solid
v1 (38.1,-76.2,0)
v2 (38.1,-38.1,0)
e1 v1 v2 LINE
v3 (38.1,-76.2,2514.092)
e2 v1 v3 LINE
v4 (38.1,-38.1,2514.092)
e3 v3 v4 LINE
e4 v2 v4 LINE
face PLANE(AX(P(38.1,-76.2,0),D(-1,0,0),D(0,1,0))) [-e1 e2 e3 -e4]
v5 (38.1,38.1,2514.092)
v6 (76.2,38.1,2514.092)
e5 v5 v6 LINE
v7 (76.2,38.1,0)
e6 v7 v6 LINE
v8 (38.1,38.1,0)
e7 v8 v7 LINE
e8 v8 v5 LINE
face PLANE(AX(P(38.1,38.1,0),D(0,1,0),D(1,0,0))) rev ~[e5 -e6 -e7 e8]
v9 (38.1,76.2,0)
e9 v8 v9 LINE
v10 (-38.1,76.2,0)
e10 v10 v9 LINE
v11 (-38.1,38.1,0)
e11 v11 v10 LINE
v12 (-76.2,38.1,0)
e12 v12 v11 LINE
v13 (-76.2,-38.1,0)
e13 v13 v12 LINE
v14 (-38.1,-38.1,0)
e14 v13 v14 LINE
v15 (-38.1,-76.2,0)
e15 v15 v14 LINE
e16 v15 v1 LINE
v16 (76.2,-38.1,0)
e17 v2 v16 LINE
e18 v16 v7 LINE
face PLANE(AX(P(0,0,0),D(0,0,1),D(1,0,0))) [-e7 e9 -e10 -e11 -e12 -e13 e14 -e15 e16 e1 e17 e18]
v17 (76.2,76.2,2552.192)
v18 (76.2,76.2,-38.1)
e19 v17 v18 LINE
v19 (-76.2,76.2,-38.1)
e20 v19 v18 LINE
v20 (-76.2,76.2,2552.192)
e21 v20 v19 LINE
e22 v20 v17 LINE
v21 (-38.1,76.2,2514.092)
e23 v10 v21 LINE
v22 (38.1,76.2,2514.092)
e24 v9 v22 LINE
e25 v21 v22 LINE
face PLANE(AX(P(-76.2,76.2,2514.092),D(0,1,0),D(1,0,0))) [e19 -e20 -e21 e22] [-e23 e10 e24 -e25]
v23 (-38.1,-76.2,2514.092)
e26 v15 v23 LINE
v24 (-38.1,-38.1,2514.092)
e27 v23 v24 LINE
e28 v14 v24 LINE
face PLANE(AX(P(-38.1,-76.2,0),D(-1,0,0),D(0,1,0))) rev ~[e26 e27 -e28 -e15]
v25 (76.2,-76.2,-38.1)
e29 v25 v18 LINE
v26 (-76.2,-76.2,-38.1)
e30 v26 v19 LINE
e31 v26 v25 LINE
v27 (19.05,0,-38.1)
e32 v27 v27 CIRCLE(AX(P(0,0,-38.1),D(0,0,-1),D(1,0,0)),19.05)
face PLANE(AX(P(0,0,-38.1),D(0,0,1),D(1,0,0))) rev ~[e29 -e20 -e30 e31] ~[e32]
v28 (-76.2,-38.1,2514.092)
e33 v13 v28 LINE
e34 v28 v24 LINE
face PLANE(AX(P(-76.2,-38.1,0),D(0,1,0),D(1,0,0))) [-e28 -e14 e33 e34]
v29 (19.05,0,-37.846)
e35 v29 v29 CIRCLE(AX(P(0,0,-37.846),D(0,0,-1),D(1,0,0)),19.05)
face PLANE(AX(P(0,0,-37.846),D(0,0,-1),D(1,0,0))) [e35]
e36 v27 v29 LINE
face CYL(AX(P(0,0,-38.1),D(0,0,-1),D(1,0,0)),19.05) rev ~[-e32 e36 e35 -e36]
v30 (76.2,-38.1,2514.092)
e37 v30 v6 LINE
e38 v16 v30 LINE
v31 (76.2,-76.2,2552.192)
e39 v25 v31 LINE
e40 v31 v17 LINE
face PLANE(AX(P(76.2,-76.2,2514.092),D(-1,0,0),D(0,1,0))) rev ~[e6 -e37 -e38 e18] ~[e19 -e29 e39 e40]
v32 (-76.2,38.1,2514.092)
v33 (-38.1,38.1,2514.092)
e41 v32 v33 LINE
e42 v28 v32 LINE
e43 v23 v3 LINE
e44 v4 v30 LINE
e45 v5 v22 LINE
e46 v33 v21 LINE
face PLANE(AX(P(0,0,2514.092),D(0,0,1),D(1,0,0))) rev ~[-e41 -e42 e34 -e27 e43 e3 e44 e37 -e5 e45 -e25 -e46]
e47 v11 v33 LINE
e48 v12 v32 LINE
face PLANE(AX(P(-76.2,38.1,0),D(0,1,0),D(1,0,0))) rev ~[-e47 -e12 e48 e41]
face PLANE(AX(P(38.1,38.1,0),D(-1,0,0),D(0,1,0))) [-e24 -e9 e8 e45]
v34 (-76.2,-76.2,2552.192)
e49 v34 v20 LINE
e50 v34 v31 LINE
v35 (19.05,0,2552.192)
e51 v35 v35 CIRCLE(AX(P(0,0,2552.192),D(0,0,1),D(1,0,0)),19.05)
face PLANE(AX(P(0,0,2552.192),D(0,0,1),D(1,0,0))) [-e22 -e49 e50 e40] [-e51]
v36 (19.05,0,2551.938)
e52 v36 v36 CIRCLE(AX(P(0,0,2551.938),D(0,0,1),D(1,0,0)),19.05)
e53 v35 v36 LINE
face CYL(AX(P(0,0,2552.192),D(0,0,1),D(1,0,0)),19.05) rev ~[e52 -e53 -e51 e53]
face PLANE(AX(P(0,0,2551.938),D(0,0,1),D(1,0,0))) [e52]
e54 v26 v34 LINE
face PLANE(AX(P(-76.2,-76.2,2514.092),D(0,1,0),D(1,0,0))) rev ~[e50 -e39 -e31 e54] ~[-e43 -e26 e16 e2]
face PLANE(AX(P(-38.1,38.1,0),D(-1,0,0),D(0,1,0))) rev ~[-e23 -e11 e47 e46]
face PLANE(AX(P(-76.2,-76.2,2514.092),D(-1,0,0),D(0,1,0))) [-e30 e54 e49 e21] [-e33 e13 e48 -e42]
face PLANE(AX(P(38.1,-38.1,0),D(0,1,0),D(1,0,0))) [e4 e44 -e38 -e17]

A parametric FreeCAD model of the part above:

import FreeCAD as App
import Part
import Sketcher
Q = App.Units.Quantity

doc = App.newDocument("Part")
body = doc.addObject("PartDesign::Body", "Body")

sketch1 = doc.addObject("Sketcher::SketchObject", "Sketch")
body.addObject(sketch1)
sketch1.AttachmentSupport = (doc.XY_Plane, [""])
sketch1.MapMode = "FlatFace"
sketch1.addGeometry([
    Part.LineSegment(App.Vector(-76, 76, 0), App.Vector(-76, -76, 0)),
    Part.LineSegment(App.Vector(-76, -76, 0), App.Vector(76, -76, 0)),
    Part.LineSegment(App.Vector(76, -76, 0), App.Vector(76, 76, 0)),
    Part.LineSegment(App.Vector(76, 76, 0), App.Vector(-76, 76, 0)),
], False)
sketch1.addConstraint([
    Sketcher.Constraint("Coincident", 0, 2, 1, 1),
    Sketcher.Constraint("Coincident", 1, 2, 2, 1),
    Sketcher.Constraint("Coincident", 2, 2, 3, 1),
    Sketcher.Constraint("Coincident", 3, 2, 0, 1),
    Sketcher.Constraint("Vertical", 0),
    Sketcher.Constraint("Horizontal", 1),
    Sketcher.Constraint("Vertical", 2),
    Sketcher.Constraint("Horizontal", 3),
    Sketcher.Constraint("Symmetric", 0, 2, 2, 2, -1, 1),
    Sketcher.Constraint("Equal", 3, 0),
    Sketcher.Constraint("DistanceX", 1, 1, 1, 2, Q("6 in")),
])
pad1 = doc.addObject("PartDesign::Pad", "Pad")
body.addObject(pad1)
pad1.Profile = sketch1
pad1.Length = Q("1.5 in")
pad1.Reversed = True

sketch2 = doc.addObject("Sketcher::SketchObject", "Sketch001")
body.addObject(sketch2)
sketch2.AttachmentSupport = (doc.XY_Plane, [""])
sketch2.MapMode = "FlatFace"
sketch2.addGeometry([
    Part.LineSegment(App.Vector(38, -38, 0), App.Vector(38, -76, 0)),
    Part.LineSegment(App.Vector(38, -76, 0), App.Vector(76, -76, 0)),
    Part.LineSegment(App.Vector(76, -76, 0), App.Vector(76, -38, 0)),
    Part.LineSegment(App.Vector(76, -38, 0), App.Vector(38, -38, 0)),
    Part.LineSegment(App.Vector(38, 76, 0), App.Vector(38, 38, 0)),
    Part.LineSegment(App.Vector(38, 38, 0), App.Vector(76, 38, 0)),
    Part.LineSegment(App.Vector(76, 38, 0), App.Vector(76, 76, 0)),
    Part.LineSegment(App.Vector(76, 76, 0), App.Vector(38, 76, 0)),
    Part.LineSegment(App.Vector(-76, -38, 0), App.Vector(-76, -76, 0)),
    Part.LineSegment(App.Vector(-76, -76, 0), App.Vector(-38, -76, 0)),
    Part.LineSegment(App.Vector(-38, -76, 0), App.Vector(-38, -38, 0)),
    Part.LineSegment(App.Vector(-38, -38, 0), App.Vector(-76, -38, 0)),
    Part.LineSegment(App.Vector(-76, 76, 0), App.Vector(-76, 38, 0)),
    Part.LineSegment(App.Vector(-76, 38, 0), App.Vector(-38, 38, 0)),
    Part.LineSegment(App.Vector(-38, 38, 0), App.Vector(-38, 76, 0)),
    Part.LineSegment(App.Vector(-38, 76, 0), App.Vector(-76, 76, 0)),
], False)
sketch2.addConstraint([
    Sketcher.Constraint("Coincident", 0, 2, 1, 1),
    Sketcher.Constraint("Coincident", 1, 2, 2, 1),
    Sketcher.Constraint("Coincident", 2, 2, 3, 1),
    Sketcher.Constraint("Coincident", 3, 2, 0, 1),
    Sketcher.Constraint("Coincident", 4, 2, 5, 1),
    Sketcher.Constraint("Coincident", 5, 2, 6, 1),
    Sketcher.Constraint("Coincident", 6, 2, 7, 1),
    Sketcher.Constraint("Coincident", 7, 2, 4, 1),
    Sketcher.Constraint("Coincident", 8, 2, 9, 1),
    Sketcher.Constraint("Coincident", 9, 2, 10, 1),
    Sketcher.Constraint("Coincident", 10, 2, 11, 1),
    Sketcher.Constraint("Coincident", 11, 2, 8, 1),
    Sketcher.Constraint("Coincident", 12, 2, 13, 1),
    Sketcher.Constraint("Coincident", 13, 2, 14, 1),
    Sketcher.Constraint("Coincident", 14, 2, 15, 1),
    Sketcher.Constraint("Coincident", 15, 2, 12, 1),
    Sketcher.Constraint("Vertical", 0),
    Sketcher.Constraint("Horizontal", 1),
    Sketcher.Constraint("Vertical", 2),
    Sketcher.Constraint("Horizontal", 3),
    Sketcher.Constraint("Vertical", 4),
    Sketcher.Constraint("Horizontal", 5),
    Sketcher.Constraint("Vertical", 6),
    Sketcher.Constraint("Horizontal", 7),
    Sketcher.Constraint("Vertical", 8),
    Sketcher.Constraint("Horizontal", 9),
    Sketcher.Constraint("Vertical", 10),
    Sketcher.Constraint("Horizontal", 11),
    Sketcher.Constraint("Vertical", 12),
    Sketcher.Constraint("Horizontal", 13),
    Sketcher.Constraint("Vertical", 14),
    Sketcher.Constraint("Horizontal", 15),
    Sketcher.Constraint("Symmetric", 6, 2, 8, 2, -1, 1),
    Sketcher.Constraint("Symmetric", 4, 2, 10, 2, -1, 1),
    Sketcher.Constraint("Symmetric", 2, 2, 12, 2, -1, 1),
    Sketcher.Constraint("Symmetric", 0, 2, 14, 2, -1, 1),
    Sketcher.Constraint("Symmetric", 1, 2, 8, 2, -2),
    Sketcher.Constraint("Symmetric", 3, 2, 10, 2, -2),
    Sketcher.Constraint("Equal", 15, 0),
    Sketcher.Constraint("DistanceX", 1, 1, 1, 2, Q("1.5 in")),
    Sketcher.Constraint("DistanceY", 0, 2, -1, 1, Q("3 in")),
    Sketcher.Constraint("DistanceX", -1, 1, 1, 2, Q("3 in")),
])
pad2 = doc.addObject("PartDesign::Pad", "Pad001")
body.addObject(pad2)
pad2.Profile = sketch2
pad2.Length = Q("98.98 in")

sketch3 = doc.addObject("Sketcher::SketchObject", "Sketch002")
body.addObject(sketch3)
sketch3.AttachmentSupport = (doc.XY_Plane, [""])
sketch3.MapMode = "FlatFace"
sketch3.AttachmentOffset = App.Placement(App.Vector(0, 0, 98.98 * 25.4), App.Rotation())
sketch3.addGeometry([
    Part.LineSegment(App.Vector(-76, 76, 0), App.Vector(-76, -76, 0)),
    Part.LineSegment(App.Vector(-76, -76, 0), App.Vector(76, -76, 0)),
    Part.LineSegment(App.Vector(76, -76, 0), App.Vector(76, 76, 0)),
    Part.LineSegment(App.Vector(76, 76, 0), App.Vector(-76, 76, 0)),
], False)
sketch3.addConstraint([
    Sketcher.Constraint("Coincident", 0, 2, 1, 1),
    Sketcher.Constraint("Coincident", 1, 2, 2, 1),
    Sketcher.Constraint("Coincident", 2, 2, 3, 1),
    Sketcher.Constraint("Coincident", 3, 2, 0, 1),
    Sketcher.Constraint("Vertical", 0),
    Sketcher.Constraint("Horizontal", 1),
    Sketcher.Constraint("Vertical", 2),
    Sketcher.Constraint("Horizontal", 3),
    Sketcher.Constraint("Symmetric", 0, 2, 2, 2, -1, 1),
    Sketcher.Constraint("Equal", 3, 0),
    Sketcher.Constraint("DistanceX", 1, 1, 1, 2, Q("6 in")),
])
pad3 = doc.addObject("PartDesign::Pad", "Pad002")
body.addObject(pad3)
pad3.Profile = sketch3
pad3.Length = Q("1.5 in")

sketch4 = doc.addObject("Sketcher::SketchObject", "Sketch003")
body.addObject(sketch4)
sketch4.AttachmentSupport = (doc.XY_Plane, [""])
sketch4.MapMode = "FlatFace"
sketch4.AttachmentOffset = App.Placement(App.Vector(0, 0, -1.5 * 25.4), App.Rotation())
sketch4.addGeometry(Part.Circle(App.Vector(0, 0, 0), App.Vector(0, 0, 1), 19), False)
sketch4.addConstraint([
    Sketcher.Constraint("Coincident", 0, 3, -1, 1),
    Sketcher.Constraint("Diameter", 0, Q("1.5 in")),
])
pocket1 = doc.addObject("PartDesign::Pocket", "Pocket")
body.addObject(pocket1)
pocket1.Profile = sketch4
pocket1.Length = Q("0.01 in")
pocket1.Reversed = True

sketch5 = doc.addObject("Sketcher::SketchObject", "Sketch004")
body.addObject(sketch5)
sketch5.AttachmentSupport = (doc.XY_Plane, [""])
sketch5.MapMode = "FlatFace"
sketch5.AttachmentOffset = App.Placement(App.Vector(0, 0, 100.48 * 25.4), App.Rotation())
sketch5.addGeometry(Part.Circle(App.Vector(0, 0, 0), App.Vector(0, 0, 1), 19), False)
sketch5.addConstraint([
    Sketcher.Constraint("Coincident", 0, 3, -1, 1),
    Sketcher.Constraint("Diameter", 0, Q("1.5 in")),
])
pocket2 = doc.addObject("PartDesign::Pocket", "Pocket001")
body.addObject(pocket2)
pocket2.Profile = sketch5
pocket2.Length = Q("0.01 in")

doc.recompute()
